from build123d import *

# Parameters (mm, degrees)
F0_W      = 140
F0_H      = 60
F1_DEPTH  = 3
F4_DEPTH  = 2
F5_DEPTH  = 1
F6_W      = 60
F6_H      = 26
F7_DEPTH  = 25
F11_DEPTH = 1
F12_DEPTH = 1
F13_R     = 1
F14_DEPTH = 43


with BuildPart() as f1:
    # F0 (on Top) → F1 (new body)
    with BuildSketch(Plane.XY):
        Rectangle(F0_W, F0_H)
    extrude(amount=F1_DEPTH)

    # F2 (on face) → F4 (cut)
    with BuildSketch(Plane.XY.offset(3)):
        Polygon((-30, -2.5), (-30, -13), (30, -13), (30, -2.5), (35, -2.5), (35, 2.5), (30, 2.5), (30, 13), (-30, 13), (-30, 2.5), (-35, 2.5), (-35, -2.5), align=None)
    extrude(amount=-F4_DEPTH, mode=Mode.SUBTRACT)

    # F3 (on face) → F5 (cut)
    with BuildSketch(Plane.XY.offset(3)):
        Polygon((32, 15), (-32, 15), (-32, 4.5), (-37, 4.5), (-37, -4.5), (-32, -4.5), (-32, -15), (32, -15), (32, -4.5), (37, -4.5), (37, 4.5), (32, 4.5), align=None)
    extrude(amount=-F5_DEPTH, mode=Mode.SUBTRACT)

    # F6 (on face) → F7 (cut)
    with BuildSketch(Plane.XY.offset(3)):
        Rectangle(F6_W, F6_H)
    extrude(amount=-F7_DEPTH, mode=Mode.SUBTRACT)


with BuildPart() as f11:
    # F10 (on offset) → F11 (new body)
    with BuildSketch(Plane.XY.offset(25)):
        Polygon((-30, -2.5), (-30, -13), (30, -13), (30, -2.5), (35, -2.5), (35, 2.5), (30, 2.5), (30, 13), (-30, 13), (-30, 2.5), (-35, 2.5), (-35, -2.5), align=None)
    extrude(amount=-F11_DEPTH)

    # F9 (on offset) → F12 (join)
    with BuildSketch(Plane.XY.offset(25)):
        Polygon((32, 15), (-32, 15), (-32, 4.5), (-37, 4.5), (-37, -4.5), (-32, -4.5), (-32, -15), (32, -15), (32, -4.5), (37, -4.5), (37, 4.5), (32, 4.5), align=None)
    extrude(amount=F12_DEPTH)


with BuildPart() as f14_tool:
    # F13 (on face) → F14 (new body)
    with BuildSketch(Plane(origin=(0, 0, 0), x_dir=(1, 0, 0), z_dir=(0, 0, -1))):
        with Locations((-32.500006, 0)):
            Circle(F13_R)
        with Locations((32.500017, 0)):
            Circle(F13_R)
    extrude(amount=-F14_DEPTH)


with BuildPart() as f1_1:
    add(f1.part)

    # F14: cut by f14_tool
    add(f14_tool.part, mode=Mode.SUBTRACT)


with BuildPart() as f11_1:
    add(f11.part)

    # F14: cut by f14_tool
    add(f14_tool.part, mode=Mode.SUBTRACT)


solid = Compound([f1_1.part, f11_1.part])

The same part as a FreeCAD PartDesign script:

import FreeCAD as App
import Part
import Sketcher

V = App.Vector

doc = App.newDocument("Part")
body = doc.addObject("PartDesign::Body", "Body")

# Sketch on XY plane
sketch1 = body.newObject("Sketcher::SketchObject", "Sketch")
sketch1.AttachmentSupport = (doc.getObject("XY_Plane"), [""])
sketch1.MapMode = "FlatFace"
sketch1.addGeometry(Part.LineSegment(V(-70, 30, 0), V(-70, -30, 0)), False)
sketch1.addGeometry(Part.LineSegment(V(-70, -30, 0), V(70, -30, 0)), False)
sketch1.addGeometry(Part.LineSegment(V(70, -30, 0), V(70, 30, 0)), False)
sketch1.addGeometry(Part.LineSegment(V(70, 30, 0), V(-70, 30, 0)), False)
sketch1.addConstraint(Sketcher.Constraint("Coincident", 0, 2, 1, 1))
sketch1.addConstraint(Sketcher.Constraint("Coincident", 1, 2, 2, 1))
sketch1.addConstraint(Sketcher.Constraint("Coincident", 2, 2, 3, 1))
sketch1.addConstraint(Sketcher.Constraint("Coincident", 3, 2, 0, 1))
sketch1.addConstraint(Sketcher.Constraint("Vertical", 0))
sketch1.addConstraint(Sketcher.Constraint("Horizontal", 1))
sketch1.addConstraint(Sketcher.Constraint("Vertical", 2))
sketch1.addConstraint(Sketcher.Constraint("Horizontal", 3))
sketch1.addConstraint(Sketcher.Constraint("Symmetric", 0, 2, 2, 2, -1, 1))
sketch1.addConstraint(Sketcher.Constraint("DistanceX", 1, 1, 1, 2, 140.0))
sketch1.addConstraint(Sketcher.Constraint("DistanceY", 0, 2, 0, 1, 60.0))
pad1 = body.newObject("PartDesign::Pad", "Pad")
pad1.Profile = sketch1
pad1.Length = 3

# Sketch on XY plane
sketch2 = body.newObject("Sketcher::SketchObject", "Sketch001")
sketch2.AttachmentSupport = (doc.getObject("XY_Plane"), [""])
sketch2.MapMode = "FlatFace"
sketch2.AttachmentOffset = App.Placement(V(0, 0, 3), App.Rotation())
sketch2.addGeometry(Part.LineSegment(V(-30, -2, 0), V(-30, -13, 0)), False)
sketch2.addGeometry(Part.LineSegment(V(-30, -13, 0), V(30, -13, 0)), False)
sketch2.addGeometry(Part.LineSegment(V(30, -13, 0), V(30, -2, 0)), False)
sketch2.addGeometry(Part.LineSegment(V(30, -2, 0), V(35, -2, 0)), False)
sketch2.addGeometry(Part.LineSegment(V(35, -2, 0), V(35, 2, 0)), False)
sketch2.addGeometry(Part.LineSegment(V(35, 2, 0), V(30, 2, 0)), False)
sketch2.addGeometry(Part.LineSegment(V(30, 2, 0), V(30, 13, 0)), False)
sketch2.addGeometry(Part.LineSegment(V(30, 13, 0), V(-30, 13, 0)), False)
sketch2.addGeometry(Part.LineSegment(V(-30, 13, 0), V(-30, 2, 0)), False)
sketch2.addGeometry(Part.LineSegment(V(-30, 2, 0), V(-35, 2, 0)), False)
sketch2.addGeometry(Part.LineSegment(V(-35, 2, 0), V(-35, -2, 0)), False)
sketch2.addGeometry(Part.LineSegment(V(-35, -2, 0), V(-30, -2, 0)), False)
sketch2.addConstraint(Sketcher.Constraint("Coincident", 0, 2, 1, 1))
sketch2.addConstraint(Sketcher.Constraint("Coincident", 1, 2, 2, 1))
sketch2.addConstraint(Sketcher.Constraint("Coincident", 2, 2, 3, 1))
sketch2.addConstraint(Sketcher.Constraint("Coincident", 3, 2, 4, 1))
sketch2.addConstraint(Sketcher.Constraint("Coincident", 4, 2, 5, 1))
sketch2.addConstraint(Sketcher.Constraint("Coincident", 5, 2, 6, 1))
sketch2.addConstraint(Sketcher.Constraint("Coincident", 6, 2, 7, 1))
sketch2.addConstraint(Sketcher.Constraint("Coincident", 7, 2, 8, 1))
sketch2.addConstraint(Sketcher.Constraint("Coincident", 8, 2, 9, 1))
sketch2.addConstraint(Sketcher.Constraint("Coincident", 9, 2, 10, 1))
sketch2.addConstraint(Sketcher.Constraint("Coincident", 10, 2, 11, 1))
sketch2.addConstraint(Sketcher.Constraint("Coincident", 11, 2, 0, 1))
sketch2.addConstraint(Sketcher.Constraint("Vertical", 0))
sketch2.addConstraint(Sketcher.Constraint("Horizontal", 1))
sketch2.addConstraint(Sketcher.Constraint("Vertical", 2))
sketch2.addConstraint(Sketcher.Constraint("Horizontal", 3))
sketch2.addConstraint(Sketcher.Constraint("Vertical", 4))
sketch2.addConstraint(Sketcher.Constraint("Horizontal", 5))
sketch2.addConstraint(Sketcher.Constraint("Vertical", 6))
sketch2.addConstraint(Sketcher.Constraint("Horizontal", 7))
sketch2.addConstraint(Sketcher.Constraint("Vertical", 8))
sketch2.addConstraint(Sketcher.Constraint("Horizontal", 9))
sketch2.addConstraint(Sketcher.Constraint("Vertical", 10))
sketch2.addConstraint(Sketcher.Constraint("Horizontal", 11))
sketch2.addConstraint(Sketcher.Constraint("Symmetric", 0, 2, 6, 2, -1, 1))
sketch2.addConstraint(Sketcher.Constraint("Symmetric", 2, 2, 8, 2, -1, 1))
sketch2.addConstraint(Sketcher.Constraint("Symmetric", 4, 2, 10, 2, -1, 1))
sketch2.addConstraint(Sketcher.Constraint("Symmetric", 5, 2, 8, 2, -2))
sketch2.addConstraint(Sketcher.Constraint("Equal", 11, 4))
sketch2.addConstraint(Sketcher.Constraint("DistanceX", 1, 1, 1, 2, 60.0))
sketch2.addConstraint(Sketcher.Constraint("DistanceX", 3, 1, 3, 2, 5.0))
sketch2.addConstraint(Sketcher.Constraint("DistanceY", 0, 2, 0, 1, 10.5))
pocket1 = body.newObject("PartDesign::Pocket", "Pocket")
pocket1.Profile = sketch2
pocket1.Length = 2

# Sketch on XY plane
sketch3 = body.newObject("Sketcher::SketchObject", "Sketch002")
sketch3.AttachmentSupport = (doc.getObject("XY_Plane"), [""])
sketch3.MapMode = "FlatFace"
sketch3.AttachmentOffset = App.Placement(V(0, 0, 3), App.Rotation())
sketch3.addGeometry(Part.LineSegment(V(32, 15, 0), V(-32, 15, 0)), False)
sketch3.addGeometry(Part.LineSegment(V(-32, 15, 0), V(-32, 4, 0)), False)
sketch3.addGeometry(Part.LineSegment(V(-32, 4, 0), V(-37, 4, 0)), False)
sketch3.addGeometry(Part.LineSegment(V(-37, 4, 0), V(-37, -4, 0)), False)
sketch3.addGeometry(Part.LineSegment(V(-37, -4, 0), V(-32, -4, 0)), False)
sketch3.addGeometry(Part.LineSegment(V(-32, -4, 0), V(-32, -15, 0)), False)
sketch3.addGeometry(Part.LineSegment(V(-32, -15, 0), V(32, -15, 0)), False)
sketch3.addGeometry(Part.LineSegment(V(32, -15, 0), V(32, -4, 0)), False)
sketch3.addGeometry(Part.LineSegment(V(32, -4, 0), V(37, -4, 0)), False)
sketch3.addGeometry(Part.LineSegment(V(37, -4, 0), V(37, 4, 0)), False)
sketch3.addGeometry(Part.LineSegment(V(37, 4, 0), V(32, 4, 0)), False)
sketch3.addGeometry(Part.LineSegment(V(32, 4, 0), V(32, 15, 0)), False)
sketch3.addConstraint(Sketcher.Constraint("Coincident", 0, 2, 1, 1))
sketch3.addConstraint(Sketcher.Constraint("Coincident", 1, 2, 2, 1))
sketch3.addConstraint(Sketcher.Constraint("Coincident", 2, 2, 3, 1))
sketch3.addConstraint(Sketcher.Constraint("Coincident", 3, 2, 4, 1))
sketch3.addConstraint(Sketcher.Constraint("Coincident", 4, 2, 5, 1))
sketch3.addConstraint(Sketcher.Constraint("Coincident", 5, 2, 6, 1))
sketch3.addConstraint(Sketcher.Constraint("Coincident", 6, 2, 7, 1))
sketch3.addConstraint(Sketcher.Constraint("Coincident", 7, 2, 8, 1))
sketch3.addConstraint(Sketcher.Constraint("Coincident", 8, 2, 9, 1))
sketch3.addConstraint(Sketcher.Constraint("Coincident", 9, 2, 10, 1))
sketch3.addConstraint(Sketcher.Constraint("Coincident", 10, 2, 11, 1))
sketch3.addConstraint(Sketcher.Constraint("Coincident", 11, 2, 0, 1))
sketch3.addConstraint(Sketcher.Constraint("Horizontal", 0))
sketch3.addConstraint(Sketcher.Constraint("Vertical", 1))
sketch3.addConstraint(Sketcher.Constraint("Horizontal", 2))
sketch3.addConstraint(Sketcher.Constraint("Vertical", 3))
sketch3.addConstraint(Sketcher.Constraint("Horizontal", 4))
sketch3.addConstraint(Sketcher.Constraint("Vertical", 5))
sketch3.addConstraint(Sketcher.Constraint("Horizontal", 6))
sketch3.addConstraint(Sketcher.Constraint("Vertical", 7))
sketch3.addConstraint(Sketcher.Constraint("Horizontal", 8))
sketch3.addConstraint(Sketcher.Constraint("Vertical", 9))
sketch3.addConstraint(Sketcher.Constraint("Horizontal", 10))
sketch3.addConstraint(Sketcher.Constraint("Vertical", 11))
sketch3.addConstraint(Sketcher.Constraint("Symmetric", 0, 2, 6, 2, -1, 1))
sketch3.addConstraint(Sketcher.Constraint("Symmetric", 2, 2, 8, 2, -1, 1))
sketch3.addConstraint(Sketcher.Constraint("Symmetric", 4, 2, 10, 2, -1, 1))
sketch3.addConstraint(Sketcher.Constraint("Symmetric", 4, 2, 7, 2, -2))
sketch3.addConstraint(Sketcher.Constraint("DistanceX", 0, 2, 0, 1, 64.0))
sketch3.addConstraint(Sketcher.Constraint("DistanceX", 2, 2, 2, 1, 5.0))
sketch3.addConstraint(Sketcher.Constraint("DistanceY", 3, 2, 3, 1, 9.0))
sketch3.addConstraint(Sketcher.Constraint("DistanceY", 1, 2, 1, 1, 10.5))
pocket2 = body.newObject("PartDesign::Pocket", "Pocket001")
pocket2.Profile = sketch3
pocket2.Length = 1

# Sketch on XY plane
sketch4 = body.newObject("Sketcher::SketchObject", "Sketch003")
sketch4.AttachmentSupport = (doc.getObject("XY_Plane"), [""])
sketch4.MapMode = "FlatFace"
sketch4.AttachmentOffset = App.Placement(V(0, 0, 3), App.Rotation())
sketch4.addGeometry(Part.LineSegment(V(-30, 13, 0), V(-30, -13, 0)), False)
sketch4.addGeometry(Part.LineSegment(V(-30, -13, 0), V(30, -13, 0)), False)
sketch4.addGeometry(Part.LineSegment(V(30, -13, 0), V(30, 13, 0)), False)
sketch4.addGeometry(Part.LineSegment(V(30, 13, 0), V(-30, 13, 0)), False)
sketch4.addConstraint(Sketcher.Constraint("Coincident", 0, 2, 1, 1))
sketch4.addConstraint(Sketcher.Constraint("Coincident", 1, 2, 2, 1))
sketch4.addConstraint(Sketcher.Constraint("Coincident", 2, 2, 3, 1))
sketch4.addConstraint(Sketcher.Constraint("Coincident", 3, 2, 0, 1))
sketch4.addConstraint(Sketcher.Constraint("Vertical", 0))
sketch4.addConstraint(Sketcher.Constraint("Horizontal", 1))
sketch4.addConstraint(Sketcher.Constraint("Vertical", 2))
sketch4.addConstraint(Sketcher.Constraint("Horizontal", 3))
sketch4.addConstraint(Sketcher.Constraint("Symmetric", 0, 2, 2, 2, -1, 1))
sketch4.addConstraint(Sketcher.Constraint("DistanceX", 1, 1, 1, 2, 60.0))
sketch4.addConstraint(Sketcher.Constraint("DistanceY", 0, 2, 0, 1, 26.0))
pocket3 = body.newObject("PartDesign::Pocket", "Pocket002")
pocket3.Profile = sketch4
pocket3.Length = 25
body2 = doc.addObject("PartDesign::Body", "Body001")

# Sketch on XY plane
sketch5 = body2.newObject("Sketcher::SketchObject", "Sketch004")
sketch5.AttachmentSupport = (doc.getObject("XY_Plane001"), [""])
sketch5.MapMode = "FlatFace"
sketch5.AttachmentOffset = App.Placement(V(0, 0, 25), App.Rotation())
sketch5.addGeometry(Part.LineSegment(V(-30, -2, 0), V(-30, -13, 0)), False)
sketch5.addGeometry(Part.LineSegment(V(-30, -13, 0), V(30, -13, 0)), False)
sketch5.addGeometry(Part.LineSegment(V(30, -13, 0), V(30, -2, 0)), False)
sketch5.addGeometry(Part.LineSegment(V(30, -2, 0), V(35, -2, 0)), False)
sketch5.addGeometry(Part.LineSegment(V(35, -2, 0), V(35, 2, 0)), False)
sketch5.addGeometry(Part.LineSegment(V(35, 2, 0), V(30, 2, 0)), False)
sketch5.addGeometry(Part.LineSegment(V(30, 2, 0), V(30, 13, 0)), False)
sketch5.addGeometry(Part.LineSegment(V(30, 13, 0), V(-30, 13, 0)), False)
sketch5.addGeometry(Part.LineSegment(V(-30, 13, 0), V(-30, 2, 0)), False)
sketch5.addGeometry(Part.LineSegment(V(-30, 2, 0), V(-35, 2, 0)), False)
sketch5.addGeometry(Part.LineSegment(V(-35, 2, 0), V(-35, -2, 0)), False)
sketch5.addGeometry(Part.LineSegment(V(-35, -2, 0), V(-30, -2, 0)), False)
sketch5.addConstraint(Sketcher.Constraint("Coincident", 0, 2, 1, 1))
sketch5.addConstraint(Sketcher.Constraint("Coincident", 1, 2, 2, 1))
sketch5.addConstraint(Sketcher.Constraint("Coincident", 2, 2, 3, 1))
sketch5.addConstraint(Sketcher.Constraint("Coincident", 3, 2, 4, 1))
sketch5.addConstraint(Sketcher.Constraint("Coincident", 4, 2, 5, 1))
sketch5.addConstraint(Sketcher.Constraint("Coincident", 5, 2, 6, 1))
sketch5.addConstraint(Sketcher.Constraint("Coincident", 6, 2, 7, 1))
sketch5.addConstraint(Sketcher.Constraint("Coincident", 7, 2, 8, 1))
sketch5.addConstraint(Sketcher.Constraint("Coincident", 8, 2, 9, 1))
sketch5.addConstraint(Sketcher.Constraint("Coincident", 9, 2, 10, 1))
sketch5.addConstraint(Sketcher.Constraint("Coincident", 10, 2, 11, 1))
sketch5.addConstraint(Sketcher.Constraint("Coincident", 11, 2, 0, 1))
sketch5.addConstraint(Sketcher.Constraint("Vertical", 0))
sketch5.addConstraint(Sketcher.Constraint("Horizontal", 1))
sketch5.addConstraint(Sketcher.Constraint("Vertical", 2))
sketch5.addConstraint(Sketcher.Constraint("Horizontal", 3))
sketch5.addConstraint(Sketcher.Constraint("Vertical", 4))
sketch5.addConstraint(Sketcher.Constraint("Horizontal", 5))
sketch5.addConstraint(Sketcher.Constraint("Vertical", 6))
sketch5.addConstraint(Sketcher.Constraint("Horizontal", 7))
sketch5.addConstraint(Sketcher.Constraint("Vertical", 8))
sketch5.addConstraint(Sketcher.Constraint("Horizontal", 9))
sketch5.addConstraint(Sketcher.Constraint("Vertical", 10))
sketch5.addConstraint(Sketcher.Constraint("Horizontal", 11))
sketch5.addConstraint(Sketcher.Constraint("Symmetric", 0, 2, 6, 2, -1, 1))
sketch5.addConstraint(Sketcher.Constraint("Symmetric", 2, 2, 8, 2, -1, 1))
sketch5.addConstraint(Sketcher.Constraint("Symmetric", 4, 2, 10, 2, -1, 1))
sketch5.addConstraint(Sketcher.Constraint("Symmetric", 5, 2, 8, 2, -2))
sketch5.addConstraint(Sketcher.Constraint("Equal", 11, 4))
sketch5.addConstraint(Sketcher.Constraint("DistanceX", 1, 1, 1, 2, 60.0))
sketch5.addConstraint(Sketcher.Constraint("DistanceX", 3, 1, 3, 2, 5.0))
sketch5.addConstraint(Sketcher.Constraint("DistanceY", 0, 2, 0, 1, 10.5))
pad2 = body2.newObject("PartDesign::Pad", "Pad001")
pad2.Profile = sketch5
pad2.Length = 1
pad2.Reversed = True

# Sketch on XY plane
sketch6 = body2.newObject("Sketcher::SketchObject", "Sketch005")
sketch6.AttachmentSupport = (doc.getObject("XY_Plane001"), [""])
sketch6.MapMode = "FlatFace"
sketch6.AttachmentOffset = App.Placement(V(0, 0, 25), App.Rotation())
sketch6.addGeometry(Part.LineSegment(V(32, 15, 0), V(-32, 15, 0)), False)
sketch6.addGeometry(Part.LineSegment(V(-32, 15, 0), V(-32, 4, 0)), False)
sketch6.addGeometry(Part.LineSegment(V(-32, 4, 0), V(-37, 4, 0)), False)
sketch6.addGeometry(Part.LineSegment(V(-37, 4, 0), V(-37, -4, 0)), False)
sketch6.addGeometry(Part.LineSegment(V(-37, -4, 0), V(-32, -4, 0)), False)
sketch6.addGeometry(Part.LineSegment(V(-32, -4, 0), V(-32, -15, 0)), False)
sketch6.addGeometry(Part.LineSegment(V(-32, -15, 0), V(32, -15, 0)), False)
sketch6.addGeometry(Part.LineSegment(V(32, -15, 0), V(32, -4, 0)), False)
sketch6.addGeometry(Part.LineSegment(V(32, -4, 0), V(37, -4, 0)), False)
sketch6.addGeometry(Part.LineSegment(V(37, -4, 0), V(37, 4, 0)), False)
sketch6.addGeometry(Part.LineSegment(V(37, 4, 0), V(32, 4, 0)), False)
sketch6.addGeometry(Part.LineSegment(V(32, 4, 0), V(32, 15, 0)), False)
sketch6.addConstraint(Sketcher.Constraint("Coincident", 0, 2, 1, 1))
sketch6.addConstraint(Sketcher.Constraint("Coincident", 1, 2, 2, 1))
sketch6.addConstraint(Sketcher.Constraint("Coincident", 2, 2, 3, 1))
sketch6.addConstraint(Sketcher.Constraint("Coincident", 3, 2, 4, 1))
sketch6.addConstraint(Sketcher.Constraint("Coincident", 4, 2, 5, 1))
sketch6.addConstraint(Sketcher.Constraint("Coincident", 5, 2, 6, 1))
sketch6.addConstraint(Sketcher.Constraint("Coincident", 6, 2, 7, 1))
sketch6.addConstraint(Sketcher.Constraint("Coincident", 7, 2, 8, 1))
sketch6.addConstraint(Sketcher.Constraint("Coincident", 8, 2, 9, 1))
sketch6.addConstraint(Sketcher.Constraint("Coincident", 9, 2, 10, 1))
sketch6.addConstraint(Sketcher.Constraint("Coincident", 10, 2, 11, 1))
sketch6.addConstraint(Sketcher.Constraint("Coincident", 11, 2, 0, 1))
sketch6.addConstraint(Sketcher.Constraint("Horizontal", 0))
sketch6.addConstraint(Sketcher.Constraint("Vertical", 1))
sketch6.addConstraint(Sketcher.Constraint("Horizontal", 2))
sketch6.addConstraint(Sketcher.Constraint("Vertical", 3))
sketch6.addConstraint(Sketcher.Constraint("Horizontal", 4))
sketch6.addConstraint(Sketcher.Constraint("Vertical", 5))
sketch6.addConstraint(Sketcher.Constraint("Horizontal", 6))
sketch6.addConstraint(Sketcher.Constraint("Vertical", 7))
sketch6.addConstraint(Sketcher.Constraint("Horizontal", 8))
sketch6.addConstraint(Sketcher.Constraint("Vertical", 9))
sketch6.addConstraint(Sketcher.Constraint("Horizontal", 10))
sketch6.addConstraint(Sketcher.Constraint("Vertical", 11))
sketch6.addConstraint(Sketcher.Constraint("Symmetric", 0, 2, 6, 2, -1, 1))
sketch6.addConstraint(Sketcher.Constraint("Symmetric", 2, 2, 8, 2, -1, 1))
sketch6.addConstraint(Sketcher.Constraint("Symmetric", 4, 2, 10, 2, -1, 1))
sketch6.addConstraint(Sketcher.Constraint("Symmetric", 4, 2, 7, 2, -2))
sketch6.addConstraint(Sketcher.Constraint("DistanceX", 0, 2, 0, 1, 64.0))
sketch6.addConstraint(Sketcher.Constraint("DistanceX", 2, 2, 2, 1, 5.0))
sketch6.addConstraint(Sketcher.Constraint("DistanceY", 3, 2, 3, 1, 9.0))
sketch6.addConstraint(Sketcher.Constraint("DistanceY", 1, 2, 1, 1, 10.5))
pad3 = body2.newObject("PartDesign::Pad", "Pad002")
pad3.Profile = sketch6
pad3.Length = 1
body3 = doc.addObject("PartDesign::Body", "Body002")
body3.AllowCompound = True

# Sketch on XY plane
sketch7 = body3.newObject("Sketcher::SketchObject", "Sketch006")
sketch7.AttachmentSupport = (doc.getObject("XY_Plane002"), [""])
sketch7.MapMode = "FlatFace"
sketch7.addGeometry(Part.Circle(V(-32.5, 0, 0), V(0, 0, 1), 1), False)
sketch7.addGeometry(Part.Circle(V(32.5, 0, 0), V(0, 0, 1), 1), False)
sketch7.addConstraint(Sketcher.Constraint("Equal", 0, 1))
sketch7.addConstraint(Sketcher.Constraint("PointOnObject", 0, 3, -1))
sketch7.addConstraint(Sketcher.Constraint("PointOnObject", 1, 3, -1))
sketch7.addConstraint(Sketcher.Constraint("Diameter", 0, 2.0))
sketch7.addConstraint(Sketcher.Constraint("DistanceX", 0, 3, -1, 1, 32.500006))
sketch7.addConstraint(Sketcher.Constraint("DistanceX", -1, 1, 1, 3, 32.500017))
pad4 = body3.newObject("PartDesign::Pad", "Pad003")
pad4.Profile = sketch7
pad4.Length = 43
doc.recompute()

body4 = doc.addObject("PartDesign::Body", "Body003")
body4.BaseFeature = body3
boolean = body.newObject("PartDesign::Boolean", "Boolean")
boolean.Type = "Cut"
boolean.addObjects([body4])
doc.recompute()

boolean2 = body2.newObject("PartDesign::Boolean", "Boolean001")
boolean2.Type = "Cut"
boolean2.addObjects([body3])

doc.recompute()
